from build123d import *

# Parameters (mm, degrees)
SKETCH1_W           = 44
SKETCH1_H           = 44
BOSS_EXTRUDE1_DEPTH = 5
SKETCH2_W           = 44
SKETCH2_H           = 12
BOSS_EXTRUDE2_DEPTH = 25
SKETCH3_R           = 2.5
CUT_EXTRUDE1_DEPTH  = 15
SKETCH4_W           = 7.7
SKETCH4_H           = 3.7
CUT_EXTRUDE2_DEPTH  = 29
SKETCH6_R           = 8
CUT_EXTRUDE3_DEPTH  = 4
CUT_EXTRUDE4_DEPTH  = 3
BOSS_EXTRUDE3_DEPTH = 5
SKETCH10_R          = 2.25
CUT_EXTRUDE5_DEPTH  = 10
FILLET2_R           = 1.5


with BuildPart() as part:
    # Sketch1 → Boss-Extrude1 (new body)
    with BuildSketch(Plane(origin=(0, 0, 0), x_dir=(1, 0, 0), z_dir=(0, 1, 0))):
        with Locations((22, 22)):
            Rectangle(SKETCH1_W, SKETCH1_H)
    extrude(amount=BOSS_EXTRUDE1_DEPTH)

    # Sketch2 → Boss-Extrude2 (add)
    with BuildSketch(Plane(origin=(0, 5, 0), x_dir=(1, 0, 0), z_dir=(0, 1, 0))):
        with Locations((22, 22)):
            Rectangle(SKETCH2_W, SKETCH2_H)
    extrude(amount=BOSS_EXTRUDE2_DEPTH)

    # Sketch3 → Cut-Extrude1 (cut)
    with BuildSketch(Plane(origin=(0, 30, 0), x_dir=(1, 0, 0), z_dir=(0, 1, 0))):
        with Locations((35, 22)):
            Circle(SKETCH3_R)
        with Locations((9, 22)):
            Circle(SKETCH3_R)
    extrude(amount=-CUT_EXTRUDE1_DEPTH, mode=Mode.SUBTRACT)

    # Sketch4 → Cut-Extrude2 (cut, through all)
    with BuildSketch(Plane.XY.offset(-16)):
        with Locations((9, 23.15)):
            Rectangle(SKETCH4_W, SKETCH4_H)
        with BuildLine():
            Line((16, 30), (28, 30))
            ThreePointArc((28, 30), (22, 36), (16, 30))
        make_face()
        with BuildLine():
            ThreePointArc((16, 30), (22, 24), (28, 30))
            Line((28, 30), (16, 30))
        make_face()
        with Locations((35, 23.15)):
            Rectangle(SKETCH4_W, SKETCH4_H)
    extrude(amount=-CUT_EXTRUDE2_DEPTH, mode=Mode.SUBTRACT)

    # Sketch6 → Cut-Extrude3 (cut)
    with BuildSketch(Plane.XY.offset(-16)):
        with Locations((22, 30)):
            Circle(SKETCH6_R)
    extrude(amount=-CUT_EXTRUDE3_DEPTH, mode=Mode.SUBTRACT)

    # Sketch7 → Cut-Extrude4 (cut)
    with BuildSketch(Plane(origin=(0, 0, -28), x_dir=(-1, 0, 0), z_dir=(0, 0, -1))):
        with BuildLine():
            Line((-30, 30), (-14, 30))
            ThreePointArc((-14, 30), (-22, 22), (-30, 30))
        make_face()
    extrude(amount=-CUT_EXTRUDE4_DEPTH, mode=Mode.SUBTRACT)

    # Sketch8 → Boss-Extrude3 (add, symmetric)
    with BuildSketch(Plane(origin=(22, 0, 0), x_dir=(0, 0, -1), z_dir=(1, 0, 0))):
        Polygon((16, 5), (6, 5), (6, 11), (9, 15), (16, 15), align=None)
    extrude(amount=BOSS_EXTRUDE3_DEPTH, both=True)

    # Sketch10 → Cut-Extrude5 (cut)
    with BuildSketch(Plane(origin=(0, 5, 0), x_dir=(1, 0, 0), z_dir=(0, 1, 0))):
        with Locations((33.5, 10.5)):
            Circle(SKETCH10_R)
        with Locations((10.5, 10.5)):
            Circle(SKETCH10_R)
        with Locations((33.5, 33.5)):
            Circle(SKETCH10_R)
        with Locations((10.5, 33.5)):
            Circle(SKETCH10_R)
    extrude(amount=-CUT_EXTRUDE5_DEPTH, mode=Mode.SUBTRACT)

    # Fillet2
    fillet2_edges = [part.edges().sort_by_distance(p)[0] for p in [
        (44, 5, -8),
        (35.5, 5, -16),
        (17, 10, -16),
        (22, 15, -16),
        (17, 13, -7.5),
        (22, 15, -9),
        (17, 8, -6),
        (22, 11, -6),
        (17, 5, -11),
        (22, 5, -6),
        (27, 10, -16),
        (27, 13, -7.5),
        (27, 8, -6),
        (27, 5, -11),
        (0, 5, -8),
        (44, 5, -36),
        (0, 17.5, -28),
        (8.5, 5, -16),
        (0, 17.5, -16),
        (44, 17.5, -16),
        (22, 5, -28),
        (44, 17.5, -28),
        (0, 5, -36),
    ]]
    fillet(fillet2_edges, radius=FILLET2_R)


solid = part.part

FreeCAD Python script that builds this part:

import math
import FreeCAD as App
import Part
import Sketcher

V = App.Vector
Q = App.Units.Quantity


def edges_at(feature, points):
    """Names of the edges that pass closest to the given points."""
    edges = feature.Shape.Edges
    near = lambda p: min(range(len(edges)), key=lambda i: edges[i].distToShape(Part.Vertex(*p))[0])
    return sorted({f"Edge{near(p) + 1}" for p in points})

doc = App.newDocument("Part")
body = doc.addObject("PartDesign::Body", "Body")

# Sketch on XZ plane
sketch1 = body.newObject("Sketcher::SketchObject", "Sketch")
sketch1.AttachmentSupport = (doc.getObject("XZ_Plane"), [""])
sketch1.MapMode = "FlatFace"
sketch1.addGeometry([
    Part.LineSegment(V(0, -44, 0), V(0, 0, 0)),
    Part.LineSegment(V(0, 0, 0), V(44, 0, 0)),
    Part.LineSegment(V(44, 0, 0), V(44, -44, 0)),
    Part.LineSegment(V(44, -44, 0), V(0, -44, 0)),
], False)
sketch1.addConstraint([
    Sketcher.Constraint("Coincident", 0, 2, 1, 1),
    Sketcher.Constraint("Coincident", 1, 2, 2, 1),
    Sketcher.Constraint("Coincident", 2, 2, 3, 1),
    Sketcher.Constraint("Coincident", 3, 2, 0, 1),
    Sketcher.Constraint("Vertical", 0),
    Sketcher.Constraint("Horizontal", 1),
    Sketcher.Constraint("Vertical", 2),
    Sketcher.Constraint("Horizontal", 3),
    Sketcher.Constraint("Coincident", 0, 2, -1, 1),
    Sketcher.Constraint("Equal", 3, 0),
    Sketcher.Constraint("DistanceX", 1, 1, 1, 2, Q("44 mm")),
])
pad1 = body.newObject("PartDesign::Pad", "Pad")
pad1.Profile = sketch1
pad1.Length = 5
pad1.Reversed = True

# Sketch on XZ plane
sketch2 = body.newObject("Sketcher::SketchObject", "Sketch001")
sketch2.AttachmentSupport = (doc.getObject("XZ_Plane"), [""])
sketch2.MapMode = "FlatFace"
sketch2.AttachmentOffset = App.Placement(V(0, 0, -5), App.Rotation())
sketch2.addGeometry([
    Part.LineSegment(V(0, -28, 0), V(0, -16, 0)),
    Part.LineSegment(V(0, -16, 0), V(44, -16, 0)),
    Part.LineSegment(V(44, -16, 0), V(44, -28, 0)),
    Part.LineSegment(V(44, -28, 0), V(0, -28, 0)),
], False)
sketch2.addConstraint([
    Sketcher.Constraint("Coincident", 0, 2, 1, 1),
    Sketcher.Constraint("Coincident", 1, 2, 2, 1),
    Sketcher.Constraint("Coincident", 2, 2, 3, 1),
    Sketcher.Constraint("Coincident", 3, 2, 0, 1),
    Sketcher.Constraint("Vertical", 0),
    Sketcher.Constraint("Horizontal", 1),
    Sketcher.Constraint("Vertical", 2),
    Sketcher.Constraint("Horizontal", 3),
    Sketcher.Constraint("PointOnObject", 0, 2, -2),
    Sketcher.Constraint("DistanceX", 1, 1, 1, 2, Q("44 mm")),
    Sketcher.Constraint("DistanceY", 0, 1, 0, 2, Q("12 mm")),
    Sketcher.Constraint("DistanceY", 0, 2, -1, 1, Q("16 mm")),
])
pad2 = body.newObject("PartDesign::Pad", "Pad001")
pad2.Profile = sketch2
pad2.Length = 25
pad2.Reversed = True

# Sketch on XZ plane
sketch3 = body.newObject("Sketcher::SketchObject", "Sketch002")
sketch3.AttachmentSupport = (doc.getObject("XZ_Plane"), [""])
sketch3.MapMode = "FlatFace"
sketch3.AttachmentOffset = App.Placement(V(0, 0, -30), App.Rotation())
sketch3.addGeometry([
    Part.Circle(V(35, -22, 0), V(0, 0, 1), 2.5),
    Part.Circle(V(9, -22, 0), V(0, 0, 1), 2.5),
], False)
sketch3.addConstraint([
    Sketcher.Constraint("Equal", 0, 1),
    Sketcher.Constraint("Horizontal", 0, 3, 1, 3),
    Sketcher.Constraint("Diameter", 0, Q("5 mm")),
    Sketcher.Constraint("DistanceX", -1, 1, 0, 3, Q("35 mm")),
    Sketcher.Constraint("DistanceY", 0, 3, -1, 1, Q("22 mm")),
    Sketcher.Constraint("DistanceX", -1, 1, 1, 3, Q("9 mm")),
])
pocket1 = body.newObject("PartDesign::Pocket", "Pocket")
pocket1.Profile = sketch3
pocket1.Length = 15
pocket1.Reversed = True

# Sketch on XY plane
sketch4 = body.newObject("Sketcher::SketchObject", "Sketch003")
sketch4.AttachmentSupport = (doc.getObject("XY_Plane"), [""])
sketch4.MapMode = "FlatFace"
sketch4.AttachmentOffset = App.Placement(V(0, 0, -16), App.Rotation())
sketch4.addGeometry([
    Part.LineSegment(V(5.2, 25, 0), V(5.2, 21.3, 0)),  # 0
    Part.LineSegment(V(5.2, 21.3, 0), V(12.8, 21.3, 0)),  # 1
    Part.LineSegment(V(12.8, 21.3, 0), V(12.8, 25, 0)),  # 2
    Part.LineSegment(V(12.8, 25, 0), V(5.2, 25, 0)),  # 3
    Part.Circle(V(22, 30, 0), V(0, 0, 1), 6),  # 4
    Part.LineSegment(V(31.1, 25, 0), V(31.1, 21.3, 0)),  # 5
    Part.LineSegment(V(31.1, 21.3, 0), V(38.9, 21.3, 0)),  # 6
    Part.LineSegment(V(38.9, 21.3, 0), V(38.9, 25, 0)),  # 7
    Part.LineSegment(V(38.9, 25, 0), V(31.1, 25, 0)),  # 8
], False)
sketch4.addConstraint([
    Sketcher.Constraint("Coincident", 0, 2, 1, 1),
    Sketcher.Constraint("Coincident", 1, 2, 2, 1),
    Sketcher.Constraint("Coincident", 2, 2, 3, 1),
    Sketcher.Constraint("Coincident", 3, 2, 0, 1),
    Sketcher.Constraint("Coincident", 5, 2, 6, 1),
    Sketcher.Constraint("Coincident", 6, 2, 7, 1),
    Sketcher.Constraint("Coincident", 7, 2, 8, 1),
    Sketcher.Constraint("Coincident", 8, 2, 5, 1),
    Sketcher.Constraint("Vertical", 0),
    Sketcher.Constraint("Horizontal", 1),
    Sketcher.Constraint("Vertical", 2),
    Sketcher.Constraint("Horizontal", 3),
    Sketcher.Constraint("Vertical", 5),
    Sketcher.Constraint("Horizontal", 6),
    Sketcher.Constraint("Vertical", 7),
    Sketcher.Constraint("Horizontal", 8),
    Sketcher.Constraint("Horizontal", 1, 2, 5, 2),
    Sketcher.Constraint("Horizontal", 3, 2, 7, 2),
    Sketcher.Constraint("Equal", 3, 6),
    Sketcher.Constraint("Diameter", 4, Q("12 mm")),
    Sketcher.Constraint("DistanceX", 1, 1, 1, 2, Q("7.7 mm")),
    Sketcher.Constraint("DistanceY", 0, 2, 0, 1, Q("3.7 mm")),
    Sketcher.Constraint("DistanceX", -1, 1, 4, 3, Q("22 mm")),
    Sketcher.Constraint("DistanceY", -1, 1, 4, 3, Q("30 mm")),
    Sketcher.Constraint("DistanceY", -1, 1, 2, 2, Q("25 mm")),
    Sketcher.Constraint("DistanceX", 0, 2, 5, 2, Q("26 mm")),
    Sketcher.Constraint("DistanceX", -1, 1, 0, 2, Q("5.15 mm")),
])
pocket2 = body.newObject("PartDesign::Pocket", "Pocket001")
pocket2.Profile = sketch4
pocket2.Type = "ThroughAll"

# Sketch on XY plane
sketch5 = body.newObject("Sketcher::SketchObject", "Sketch004")
sketch5.AttachmentSupport = (doc.getObject("XY_Plane"), [""])
sketch5.MapMode = "FlatFace"
sketch5.AttachmentOffset = App.Placement(V(0, 0, -16), App.Rotation())
sketch5.addGeometry(Part.Circle(V(22, 30, 0), V(0, 0, 1), 8), False)
sketch5.addConstraint([
    Sketcher.Constraint("Diameter", 0, Q("16 mm")),
    Sketcher.Constraint("DistanceX", -1, 1, 0, 3, Q("22 mm")),
    Sketcher.Constraint("DistanceY", -1, 1, 0, 3, Q("30 mm")),
])
pocket3 = body.newObject("PartDesign::Pocket", "Pocket002")
pocket3.Profile = sketch5
pocket3.Length = 4

# Sketch on XY plane
sketch6 = body.newObject("Sketcher::SketchObject", "Sketch005")
sketch6.AttachmentSupport = (doc.getObject("XY_Plane"), [""])
sketch6.MapMode = "FlatFace"
sketch6.AttachmentOffset = App.Placement(V(0, 0, -28), App.Rotation())
sketch6.addGeometry([
    Part.LineSegment(V(14, 30, 0), V(30, 30, 0)),
    Part.ArcOfCircle(Part.Circle(V(22, 30, 0), V(0, 0, 1), 8), math.radians(180), math.radians(360)),
], False)
sketch6.addConstraint([
    Sketcher.Constraint("Coincident", 0, 1, 1, 1),
    Sketcher.Constraint("Coincident", 1, 2, 0, 2),
    Sketcher.Constraint("Horizontal", 0),
    Sketcher.Constraint("Horizontal", 1, 3, 0, 1),
    Sketcher.Constraint("Radius", 1, Q("8 mm")),
    Sketcher.Constraint("DistanceX", -1, 1, 1, 3, Q("22 mm")),
    Sketcher.Constraint("DistanceY", -1, 1, 1, 3, Q("30 mm")),
])
pocket4 = body.newObject("PartDesign::Pocket", "Pocket003")
pocket4.Profile = sketch6
pocket4.Length = 3
pocket4.Reversed = True

# Sketch on YZ plane
sketch7 = body.newObject("Sketcher::SketchObject", "Sketch006")
sketch7.AttachmentSupport = (doc.getObject("YZ_Plane"), [""])
sketch7.MapMode = "FlatFace"
sketch7.AttachmentOffset = App.Placement(V(0, 0, 22), App.Rotation())
sketch7.addGeometry([
    Part.LineSegment(V(5, -6, 0), V(5, -16, 0)),  # 0
    Part.LineSegment(V(5, -16, 0), V(15, -16, 0)),  # 1
    Part.LineSegment(V(15, -16, 0), V(15, -9, 0)),  # 2
    Part.LineSegment(V(15, -9, 0), V(11, -6, 0)),  # 3
    Part.LineSegment(V(11, -6, 0), V(5, -6, 0)),  # 4
], False)
sketch7.addConstraint([
    Sketcher.Constraint("Coincident", 0, 2, 1, 1),
    Sketcher.Constraint("Coincident", 1, 2, 2, 1),
    Sketcher.Constraint("Coincident", 2, 2, 3, 1),
    Sketcher.Constraint("Coincident", 3, 2, 4, 1),
    Sketcher.Constraint("Coincident", 4, 2, 0, 1),
    Sketcher.Constraint("Vertical", 0),
    Sketcher.Constraint("Horizontal", 1),
    Sketcher.Constraint("Vertical", 2),
    Sketcher.Constraint("Horizontal", 4),
    Sketcher.Constraint("Equal", 1, 0),
    Sketcher.Constraint("DistanceX", 1, 1, 1, 2, Q("10 mm")),
    Sketcher.Constraint("DistanceX", 4, 2, 4, 1, Q("6 mm")),
    Sketcher.Constraint("DistanceY", 2, 1, 2, 2, Q("7 mm")),
    Sketcher.Constraint("DistanceX", -1, 1, 0, 2, Q("5 mm")),
    Sketcher.Constraint("DistanceY", 0, 2, -1, 1, Q("16 mm")),
])
pad3 = body.newObject("PartDesign::Pad", "Pad002")
pad3.Profile = sketch7
pad3.Length = 10
pad3.Midplane = True

# Sketch on XZ plane
sketch8 = body.newObject("Sketcher::SketchObject", "Sketch007")
sketch8.AttachmentSupport = (doc.getObject("XZ_Plane"), [""])
sketch8.MapMode = "FlatFace"
sketch8.AttachmentOffset = App.Placement(V(0, 0, -5), App.Rotation())
sketch8.addGeometry([
    Part.Circle(V(33.5, -10.5, 0), V(0, 0, 1), 2.2),
    Part.Circle(V(10.5, -10.5, 0), V(0, 0, 1), 2.2),
    Part.Circle(V(33.5, -33.5, 0), V(0, 0, 1), 2.2),
    Part.Circle(V(10.5, -33.5, 0), V(0, 0, 1), 2.2),
], False)
sketch8.addConstraint([
    Sketcher.Constraint("Equal", 0, 1),
    Sketcher.Constraint("Equal", 1, 2),
    Sketcher.Constraint("Equal", 2, 3),
    Sketcher.Constraint("Horizontal", 0, 3, 1, 3),
    Sketcher.Constraint("Horizontal", 2, 3, 3, 3),
    Sketcher.Constraint("Vertical", 0, 3, 2, 3),
    Sketcher.Constraint("Vertical", 1, 3, 3, 3),
    Sketcher.Constraint("Diameter", 0, Q("4.5 mm")),
    Sketcher.Constraint("DistanceX", 1, 3, 0, 3, Q("23 mm")),
    Sketcher.Constraint("DistanceY", 2, 3, 0, 3, Q("23 mm")),
    Sketcher.Constraint("DistanceX", -1, 1, 0, 3, Q("33.5 mm")),
    Sketcher.Constraint("DistanceY", 0, 3, -1, 1, Q("10.5 mm")),
])
pocket5 = body.newObject("PartDesign::Pocket", "Pocket004")
pocket5.Profile = sketch8
pocket5.Length = 10
pocket5.Reversed = True
doc.recompute()

fillet = body.newObject("PartDesign::Fillet", "Fillet")
fillet.Base = (pocket5, edges_at(pocket5, [
    (44, 5, -8),
    (35.5, 5, -16),
    (17, 10, -16),
    (22, 15, -16),
    (17, 13, -7.5),
    (22, 15, -9),
    (17, 8, -6),
    (22, 11, -6),
    (17, 5, -11),
    (22, 5, -6),
    (27, 10, -16),
    (27, 13, -7.5),
    (27, 8, -6),
    (27, 5, -11),
    (0, 5, -8),
    (44, 5, -36),
    (0, 17.5, -28),
    (8.5, 5, -16),
    (0, 17.5, -16),
    (44, 17.5, -16),
    (22, 5, -28),
    (44, 17.5, -28),
    (0, 5, -36),
]))
fillet.Radius = 1.5

doc.recompute()
